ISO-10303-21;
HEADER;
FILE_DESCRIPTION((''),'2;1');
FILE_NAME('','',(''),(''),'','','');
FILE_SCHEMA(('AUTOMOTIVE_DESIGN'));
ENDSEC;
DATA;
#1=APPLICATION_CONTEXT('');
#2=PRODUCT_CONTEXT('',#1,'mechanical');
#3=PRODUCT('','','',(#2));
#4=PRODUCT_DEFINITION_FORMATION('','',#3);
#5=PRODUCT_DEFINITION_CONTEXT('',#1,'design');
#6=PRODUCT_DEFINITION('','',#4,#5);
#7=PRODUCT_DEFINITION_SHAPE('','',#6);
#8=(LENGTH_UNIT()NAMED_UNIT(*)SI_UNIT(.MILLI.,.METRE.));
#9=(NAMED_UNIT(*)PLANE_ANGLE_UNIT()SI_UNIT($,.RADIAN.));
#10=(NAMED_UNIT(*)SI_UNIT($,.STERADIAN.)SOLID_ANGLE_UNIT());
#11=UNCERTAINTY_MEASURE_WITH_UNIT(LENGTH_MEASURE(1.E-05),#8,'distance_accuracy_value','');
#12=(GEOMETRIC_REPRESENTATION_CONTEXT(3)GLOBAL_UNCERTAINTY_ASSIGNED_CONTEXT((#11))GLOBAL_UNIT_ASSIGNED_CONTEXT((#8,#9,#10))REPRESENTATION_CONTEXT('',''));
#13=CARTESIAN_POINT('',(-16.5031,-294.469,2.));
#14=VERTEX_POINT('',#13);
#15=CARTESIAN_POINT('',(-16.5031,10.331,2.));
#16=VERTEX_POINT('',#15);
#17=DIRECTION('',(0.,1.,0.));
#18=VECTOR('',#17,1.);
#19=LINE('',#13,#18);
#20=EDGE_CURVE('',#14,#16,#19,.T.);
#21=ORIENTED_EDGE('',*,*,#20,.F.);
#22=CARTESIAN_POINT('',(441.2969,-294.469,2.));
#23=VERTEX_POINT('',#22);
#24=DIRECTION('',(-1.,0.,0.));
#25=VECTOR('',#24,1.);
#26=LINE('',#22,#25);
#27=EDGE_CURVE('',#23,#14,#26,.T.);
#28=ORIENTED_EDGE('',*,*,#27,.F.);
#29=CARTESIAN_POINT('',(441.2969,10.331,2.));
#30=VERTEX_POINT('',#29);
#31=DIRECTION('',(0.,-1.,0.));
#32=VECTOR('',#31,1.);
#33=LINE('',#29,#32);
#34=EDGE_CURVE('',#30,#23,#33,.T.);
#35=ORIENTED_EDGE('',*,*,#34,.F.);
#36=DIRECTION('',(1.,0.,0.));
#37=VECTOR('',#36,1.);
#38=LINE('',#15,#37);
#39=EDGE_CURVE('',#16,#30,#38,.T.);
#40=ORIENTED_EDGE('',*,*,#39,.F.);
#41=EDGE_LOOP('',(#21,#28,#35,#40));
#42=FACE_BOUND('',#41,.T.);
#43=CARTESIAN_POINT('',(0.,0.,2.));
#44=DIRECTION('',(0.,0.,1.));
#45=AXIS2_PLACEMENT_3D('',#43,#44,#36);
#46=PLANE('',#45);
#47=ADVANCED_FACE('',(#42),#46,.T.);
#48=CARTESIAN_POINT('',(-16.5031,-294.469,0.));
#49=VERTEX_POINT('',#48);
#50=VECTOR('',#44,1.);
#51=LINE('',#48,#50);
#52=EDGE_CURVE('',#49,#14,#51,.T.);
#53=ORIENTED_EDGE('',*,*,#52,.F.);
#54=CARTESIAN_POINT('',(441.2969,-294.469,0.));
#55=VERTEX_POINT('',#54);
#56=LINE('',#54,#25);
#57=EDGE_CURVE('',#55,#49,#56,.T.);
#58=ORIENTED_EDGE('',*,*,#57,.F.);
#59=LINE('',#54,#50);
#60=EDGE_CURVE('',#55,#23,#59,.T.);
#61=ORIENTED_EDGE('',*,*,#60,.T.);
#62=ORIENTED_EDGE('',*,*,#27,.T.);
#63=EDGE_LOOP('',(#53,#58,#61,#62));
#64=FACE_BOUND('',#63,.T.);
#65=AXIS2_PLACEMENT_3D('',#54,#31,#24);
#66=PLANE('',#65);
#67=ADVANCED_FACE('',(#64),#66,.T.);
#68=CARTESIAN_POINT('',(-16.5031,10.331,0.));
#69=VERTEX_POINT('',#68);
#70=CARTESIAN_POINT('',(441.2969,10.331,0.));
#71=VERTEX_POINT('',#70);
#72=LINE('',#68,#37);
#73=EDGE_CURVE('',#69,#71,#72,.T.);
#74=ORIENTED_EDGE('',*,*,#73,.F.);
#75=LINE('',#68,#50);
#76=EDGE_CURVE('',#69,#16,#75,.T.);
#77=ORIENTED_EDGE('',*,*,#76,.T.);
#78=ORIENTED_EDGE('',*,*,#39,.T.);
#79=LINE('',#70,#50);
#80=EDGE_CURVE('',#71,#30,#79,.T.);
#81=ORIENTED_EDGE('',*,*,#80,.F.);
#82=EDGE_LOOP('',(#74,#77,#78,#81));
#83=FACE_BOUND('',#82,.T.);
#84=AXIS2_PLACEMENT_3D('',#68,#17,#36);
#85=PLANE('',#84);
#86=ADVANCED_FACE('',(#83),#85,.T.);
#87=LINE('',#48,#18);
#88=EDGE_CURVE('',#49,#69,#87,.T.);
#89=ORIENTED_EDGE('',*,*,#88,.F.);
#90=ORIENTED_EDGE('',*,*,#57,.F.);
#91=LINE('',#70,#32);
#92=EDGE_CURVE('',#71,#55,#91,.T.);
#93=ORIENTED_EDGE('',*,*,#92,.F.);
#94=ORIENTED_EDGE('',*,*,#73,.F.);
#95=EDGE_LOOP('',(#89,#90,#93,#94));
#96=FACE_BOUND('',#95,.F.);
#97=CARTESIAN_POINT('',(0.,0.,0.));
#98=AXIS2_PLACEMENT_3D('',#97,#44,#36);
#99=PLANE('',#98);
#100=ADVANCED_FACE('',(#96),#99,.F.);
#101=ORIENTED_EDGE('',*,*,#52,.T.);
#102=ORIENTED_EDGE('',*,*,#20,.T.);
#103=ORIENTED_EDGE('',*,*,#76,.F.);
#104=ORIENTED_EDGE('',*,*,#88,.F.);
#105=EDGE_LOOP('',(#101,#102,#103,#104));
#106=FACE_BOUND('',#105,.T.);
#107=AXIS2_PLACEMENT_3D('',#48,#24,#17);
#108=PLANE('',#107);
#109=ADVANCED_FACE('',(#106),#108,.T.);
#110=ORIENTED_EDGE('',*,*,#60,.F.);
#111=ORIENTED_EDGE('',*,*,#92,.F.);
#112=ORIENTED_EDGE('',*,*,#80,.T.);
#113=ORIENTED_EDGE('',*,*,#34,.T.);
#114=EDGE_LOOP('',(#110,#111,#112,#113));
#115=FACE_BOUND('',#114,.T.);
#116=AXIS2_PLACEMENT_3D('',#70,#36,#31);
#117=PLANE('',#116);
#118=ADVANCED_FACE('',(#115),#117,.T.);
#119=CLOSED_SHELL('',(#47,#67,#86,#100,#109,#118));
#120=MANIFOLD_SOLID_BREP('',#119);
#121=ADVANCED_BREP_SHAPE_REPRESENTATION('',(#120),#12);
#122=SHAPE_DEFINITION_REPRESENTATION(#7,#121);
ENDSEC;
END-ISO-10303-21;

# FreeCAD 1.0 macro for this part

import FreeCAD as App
import Part
import Sketcher
from FreeCAD import Vector
Q = App.Units.Quantity


def add_polygon(sketch, points):
    """Adds a closed chain of lines whose ends are joined by coincident constraints."""
    first, n = sketch.GeometryCount, len(points)
    for a, b in zip(points, points[1:] + points[:1]):
        sketch.addGeometry(Part.LineSegment(App.Vector(*a, 0), App.Vector(*b, 0)), False)
    for i in range(n):
        sketch.addConstraint(Sketcher.Constraint("Coincident", first + i, 2, first + (i + 1) % n, 1))

doc = App.newDocument("Part")
params = doc.addObject("Spreadsheet::Sheet", "Params")
for row, (alias, value) in enumerate([
    ("sketch1_width", "457.8 mm"),
    ("sketch1_height", "304.8 mm"),
    ("pad1_length", "2 mm"),
], start=1):
    params.set(f"A{row}", alias)
    params.set(f"B{row}", "=" + value)
    params.setAlias(f"B{row}", alias)

body = doc.addObject("PartDesign::Body", "Body")

# Sketch on XY plane
sketch1 = body.newObject("Sketcher::SketchObject", "Sketch")
sketch1.AttachmentSupport = (doc.getObject("XY_Plane"), [""])
sketch1.MapMode = "FlatFace"
add_polygon(sketch1, [(441, 10), (-17, 10), (-17, -294), (441, -294)])  # lines 0-3
sketch1.addConstraint([
    Sketcher.Constraint("Horizontal", 0),
    Sketcher.Constraint("Vertical", 1),
    Sketcher.Constraint("Horizontal", 2),
    Sketcher.Constraint("Vertical", 3),
    Sketcher.Constraint("DistanceX", 0, 2, 0, 1, Q("457.8 mm")),
    Sketcher.Constraint("DistanceY", 1, 2, 1, 1, Q("304.8 mm")),
    Sketcher.Constraint("DistanceX", 0, 2, -1, 1, Q("16.503 mm")),
    Sketcher.Constraint("DistanceY", -1, 1, 0, 2, Q("10.331 mm")),
])
sketch1.setExpression("Constraints[8]", "Params.sketch1_width")
sketch1.setExpression("Constraints[9]", "Params.sketch1_height")
pad1 = body.newObject("PartDesign::Pad", "Pad")
pad1.Profile = sketch1
pad1.setExpression("Length", "Params.pad1_length")

doc.recompute()
